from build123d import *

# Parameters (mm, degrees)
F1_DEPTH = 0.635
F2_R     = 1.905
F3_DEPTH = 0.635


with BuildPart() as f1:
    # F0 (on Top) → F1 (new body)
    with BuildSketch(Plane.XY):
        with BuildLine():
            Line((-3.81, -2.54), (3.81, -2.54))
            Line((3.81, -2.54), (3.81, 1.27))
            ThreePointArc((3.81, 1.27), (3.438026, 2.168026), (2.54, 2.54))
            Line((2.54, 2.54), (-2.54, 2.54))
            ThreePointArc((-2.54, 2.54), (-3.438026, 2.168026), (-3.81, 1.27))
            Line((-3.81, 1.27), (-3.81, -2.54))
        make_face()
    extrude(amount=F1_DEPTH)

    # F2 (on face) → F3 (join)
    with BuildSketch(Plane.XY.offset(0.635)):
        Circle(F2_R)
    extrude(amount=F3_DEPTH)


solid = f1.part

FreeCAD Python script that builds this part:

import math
import FreeCAD as App
import Part
import Sketcher
from FreeCAD import Vector
Q = App.Units.Quantity

doc = App.newDocument("Part")
params = doc.addObject("Spreadsheet::Sheet", "Params")
for row, (alias, value) in enumerate([
    ("sketch1_radius", "0.0499999 in"),
    ("sketch1_width", "0.3 in"),
    ("sketch1_height", "0.15 in"),
    ("pad1_length", "0.025 in"),
    ("sketch2_diameter", "0.15 in"),
    ("pad2_length", "0.025 in"),
], start=1):
    params.set(f"A{row}", alias)
    params.set(f"B{row}", "=" + value)
    params.setAlias(f"B{row}", alias)

body = doc.addObject("PartDesign::Body", "Body")

sketch1 = body.newObject("Sketcher::SketchObject", "Sketch")
sketch1.AttachmentSupport = (doc.getObject("XY_Plane"), [""])
sketch1.MapMode = "FlatFace"
sketch1.addGeometry(Part.LineSegment(Vector(-3.8, -2.5, 0), Vector(3.8, -2.5, 0)), False)
sketch1.addGeometry(Part.LineSegment(Vector(3.8, -2.5, 0), Vector(3.8, 1.3, 0)), False)
sketch1.addGeometry(Part.ArcOfCircle(Part.Circle(Vector(2.5, 1.3, 0), Vector(0, 0, 1), 1.3), math.radians(0), math.radians(90)), False)
sketch1.addGeometry(Part.LineSegment(Vector(2.5, 2.5, 0), Vector(-2.5, 2.5, 0)), False)
sketch1.addGeometry(Part.ArcOfCircle(Part.Circle(Vector(-2.5, 1.3, 0), Vector(0, 0, 1), 1.3), math.radians(90), math.radians(180)), False)
sketch1.addGeometry(Part.LineSegment(Vector(-3.8, 1.3, 0), Vector(-3.8, -2.5, 0)), False)
sketch1.addConstraint(Sketcher.Constraint("Coincident", 0, 2, 1, 1))
sketch1.addConstraint(Sketcher.Constraint("Tangent", 1, 2, 2, 1))
sketch1.addConstraint(Sketcher.Constraint("Tangent", 2, 2, 3, 1))
sketch1.addConstraint(Sketcher.Constraint("Tangent", 3, 2, 4, 1))
sketch1.addConstraint(Sketcher.Constraint("Tangent", 4, 2, 5, 1))
sketch1.addConstraint(Sketcher.Constraint("Coincident", 5, 2, 0, 1))
sketch1.addConstraint(Sketcher.Constraint("Horizontal", 0))
sketch1.addConstraint(Sketcher.Constraint("Vertical", 1))
sketch1.addConstraint(Sketcher.Constraint("Horizontal", 3))
sketch1.addConstraint(Sketcher.Constraint("Vertical", 5))
sketch1.addConstraint(Sketcher.Constraint("Equal", 2, 4))
sketch1.addConstraint(Sketcher.Constraint("Radius", 2, Q("0.0499999 in")))
sketch1.addConstraint(Sketcher.Constraint("DistanceX", 0, 1, 0, 2, Q("0.3 in")))
sketch1.addConstraint(Sketcher.Constraint("DistanceY", 1, 1, 1, 2, Q("0.15 in")))
sketch1.addConstraint(Sketcher.Constraint("DistanceX", -1, 1, 2, 3, Q("0.1000001 in")))
sketch1.addConstraint(Sketcher.Constraint("DistanceY", 0, 2, -1, 1, Q("0.1 in")))
sketch1.setExpression("Constraints[11]", "Params.sketch1_radius")
sketch1.setExpression("Constraints[12]", "Params.sketch1_width")
sketch1.setExpression("Constraints[13]", "Params.sketch1_height")
pad1 = body.newObject("PartDesign::Pad", "Pad")
pad1.Profile = sketch1
pad1.setExpression("Length", "Params.pad1_length")

sketch2 = body.newObject("Sketcher::SketchObject", "Sketch001")
sketch2.AttachmentSupport = (doc.getObject("XY_Plane"), [""])
sketch2.MapMode = "FlatFace"
sketch2.AttachmentOffset = App.Placement(Vector(0, 0, 0.025 * 25.4), App.Rotation())
sketch2.addGeometry(Part.Circle(Vector(0, 0, 0), Vector(0, 0, 1), 1.9), False)
sketch2.addConstraint(Sketcher.Constraint("Coincident", 0, 3, -1, 1))
sketch2.addConstraint(Sketcher.Constraint("Diameter", 0, Q("0.15 in")))
sketch2.setExpression("Constraints[1]", "Params.sketch2_diameter")
pad2 = body.newObject("PartDesign::Pad", "Pad001")
pad2.Profile = sketch2
pad2.setExpression("Length", "Params.pad2_length")

doc.recompute()
